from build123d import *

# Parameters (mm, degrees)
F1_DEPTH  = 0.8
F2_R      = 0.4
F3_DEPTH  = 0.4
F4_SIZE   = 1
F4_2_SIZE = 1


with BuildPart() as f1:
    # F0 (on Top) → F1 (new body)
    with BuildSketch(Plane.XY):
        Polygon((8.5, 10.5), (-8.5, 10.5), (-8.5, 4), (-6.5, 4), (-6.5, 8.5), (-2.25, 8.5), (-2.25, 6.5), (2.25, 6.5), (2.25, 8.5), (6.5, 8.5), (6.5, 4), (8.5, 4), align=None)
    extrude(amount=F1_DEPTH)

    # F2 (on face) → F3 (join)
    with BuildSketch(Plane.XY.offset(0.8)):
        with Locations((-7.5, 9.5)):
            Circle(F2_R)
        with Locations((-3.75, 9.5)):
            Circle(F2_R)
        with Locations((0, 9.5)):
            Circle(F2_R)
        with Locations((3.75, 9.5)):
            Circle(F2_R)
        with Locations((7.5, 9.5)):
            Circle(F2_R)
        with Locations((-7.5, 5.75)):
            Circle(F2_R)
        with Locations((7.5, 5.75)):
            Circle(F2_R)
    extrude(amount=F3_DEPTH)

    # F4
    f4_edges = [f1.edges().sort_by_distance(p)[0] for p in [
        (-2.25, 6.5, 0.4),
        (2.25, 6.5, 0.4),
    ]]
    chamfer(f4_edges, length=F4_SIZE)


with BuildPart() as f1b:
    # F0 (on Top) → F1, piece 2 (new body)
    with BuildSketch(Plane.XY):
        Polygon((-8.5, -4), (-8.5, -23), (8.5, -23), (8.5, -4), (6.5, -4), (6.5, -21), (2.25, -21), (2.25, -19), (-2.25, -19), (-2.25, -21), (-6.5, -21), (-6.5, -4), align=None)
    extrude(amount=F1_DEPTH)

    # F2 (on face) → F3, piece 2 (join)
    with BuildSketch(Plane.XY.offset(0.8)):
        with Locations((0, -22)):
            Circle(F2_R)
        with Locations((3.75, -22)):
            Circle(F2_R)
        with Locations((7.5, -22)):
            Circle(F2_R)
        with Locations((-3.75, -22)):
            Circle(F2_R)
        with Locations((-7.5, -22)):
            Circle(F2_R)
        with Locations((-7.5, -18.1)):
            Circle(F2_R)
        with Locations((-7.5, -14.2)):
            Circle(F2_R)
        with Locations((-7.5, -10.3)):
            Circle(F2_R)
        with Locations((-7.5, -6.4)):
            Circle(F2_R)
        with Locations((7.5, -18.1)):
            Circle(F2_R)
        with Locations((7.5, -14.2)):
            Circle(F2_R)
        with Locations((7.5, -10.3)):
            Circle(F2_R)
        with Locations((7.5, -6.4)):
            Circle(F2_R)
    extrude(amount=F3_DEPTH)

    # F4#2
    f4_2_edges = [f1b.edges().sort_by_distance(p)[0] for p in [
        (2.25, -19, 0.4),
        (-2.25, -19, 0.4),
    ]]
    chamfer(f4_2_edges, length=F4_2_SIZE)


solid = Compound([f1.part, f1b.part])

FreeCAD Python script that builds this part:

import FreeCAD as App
import Part
import Sketcher

V = App.Vector


def edges_at(feature, points):
    """Names of the edges that pass closest to the given points."""
    edges = feature.Shape.Edges
    near = lambda p: min(range(len(edges)), key=lambda i: edges[i].distToShape(Part.Vertex(*p))[0])
    return sorted({f"Edge{near(p) + 1}" for p in points})


def add_polygon(sketch, points):
    """Adds a closed chain of lines whose ends are joined by coincident constraints."""
    first, n = sketch.GeometryCount, len(points)
    for a, b in zip(points, points[1:] + points[:1]):
        sketch.addGeometry(Part.LineSegment(App.Vector(*a, 0), App.Vector(*b, 0)), False)
    for i in range(n):
        sketch.addConstraint(Sketcher.Constraint("Coincident", first + i, 2, first + (i + 1) % n, 1))

doc = App.newDocument("Part")
body = doc.addObject("PartDesign::Body", "Body")

# Sketch on XY plane
sketch1 = body.newObject("Sketcher::SketchObject", "Sketch")
sketch1.AttachmentSupport = (doc.getObject("XY_Plane"), [""])
sketch1.MapMode = "FlatFace"
add_polygon(sketch1, [(8.5, 10.5), (-8.5, 10.5), (-8.5, 4), (-6.5, 4), (-6.5, 8.5), (-2.25, 8.5), (-2.25, 6.5), (2.25, 6.5), (2.25, 8.5), (6.5, 8.5), (6.5, 4), (8.5, 4)])  # lines 0-11
sketch1.addConstraint([
    Sketcher.Constraint("Horizontal", 0),
    Sketcher.Constraint("Vertical", 1),
    Sketcher.Constraint("Horizontal", 2),
    Sketcher.Constraint("Vertical", 3),
    Sketcher.Constraint("Horizontal", 4),
    Sketcher.Constraint("Vertical", 5),
    Sketcher.Constraint("Horizontal", 6),
    Sketcher.Constraint("Vertical", 7),
    Sketcher.Constraint("Horizontal", 8),
    Sketcher.Constraint("Vertical", 9),
    Sketcher.Constraint("Horizontal", 10),
    Sketcher.Constraint("Vertical", 11),
    Sketcher.Constraint("Symmetric", 4, 2, 7, 2, -2),
    Sketcher.Constraint("Symmetric", 2, 2, 9, 2, -2),
    Sketcher.Constraint("Equal", 2, 10),
    Sketcher.Constraint("Equal", 6, 3),
    Sketcher.Constraint("Equal", 10, 5),
    Sketcher.Constraint("DistanceX", 0, 2, 0, 1, 17.0),
    Sketcher.Constraint("DistanceX", 2, 1, 2, 2, 2.0),
    Sketcher.Constraint("DistanceX", 6, 1, 6, 2, 4.5),
    Sketcher.Constraint("DistanceY", 1, 2, 1, 1, 6.5),
    Sketcher.Constraint("DistanceY", -1, 1, 1, 2, 4.0),
])
pad1 = body.newObject("PartDesign::Pad", "Pad")
pad1.Profile = sketch1
pad1.Length = 0.8

# Sketch on XY plane
sketch2 = body.newObject("Sketcher::SketchObject", "Sketch001")
sketch2.AttachmentSupport = (doc.getObject("XY_Plane"), [""])
sketch2.MapMode = "FlatFace"
sketch2.AttachmentOffset = App.Placement(V(0, 0, 0.8), App.Rotation())
sketch2.addGeometry([
    Part.Circle(V(-7.5, 9.5, 0), V(0, 0, 1), 0.4),  # 0
    Part.Circle(V(-3.75, 9.5, 0), V(0, 0, 1), 0.4),  # 1
    Part.Circle(V(0, 9.5, 0), V(0, 0, 1), 0.4),  # 2
    Part.Circle(V(3.75, 9.5, 0), V(0, 0, 1), 0.4),  # 3
    Part.Circle(V(7.5, 9.5, 0), V(0, 0, 1), 0.4),  # 4
    Part.Circle(V(-7.5, 5.75, 0), V(0, 0, 1), 0.4),  # 5
    Part.Circle(V(7.5, 5.75, 0), V(0, 0, 1), 0.4),  # 6
], False)
sketch2.addConstraint([
    Sketcher.Constraint("Equal", 0, 1),
    Sketcher.Constraint("Equal", 1, 2),
    Sketcher.Constraint("Equal", 2, 3),
    Sketcher.Constraint("Equal", 3, 4),
    Sketcher.Constraint("Equal", 4, 5),
    Sketcher.Constraint("Equal", 5, 6),
    Sketcher.Constraint("Symmetric", 1, 3, 3, 3, -2),
    Sketcher.Constraint("Symmetric", 0, 3, 4, 3, -2),
    Sketcher.Constraint("Symmetric", 5, 3, 6, 3, -2),
    Sketcher.Constraint("PointOnObject", 2, 3, -2),
    Sketcher.Constraint("Horizontal", 0, 3, 1, 3),
    Sketcher.Constraint("Horizontal", 1, 3, 2, 3),
    Sketcher.Constraint("Vertical", 0, 3, 5, 3),
    Sketcher.Constraint("Diameter", 0, 0.8),
    Sketcher.Constraint("DistanceX", 0, 3, 4, 3, 15.0),
    Sketcher.Constraint("DistanceY", -1, 1, 0, 3, 9.5),
    Sketcher.Constraint("DistanceX", 1, 3, 3, 3, 7.5),
    Sketcher.Constraint("DistanceY", -1, 1, 5, 3, 5.75),
])
pad2 = body.newObject("PartDesign::Pad", "Pad001")
pad2.Profile = sketch2
pad2.Length = 0.4
doc.recompute()

chamfer = body.newObject("PartDesign::Chamfer", "Chamfer")
chamfer.Base = (pad2, edges_at(pad2, [(-2.25, 6.5, 0.4), (2.25, 6.5, 0.4)]))
chamfer.Size = 1
body2 = doc.addObject("PartDesign::Body", "Body001")

# Sketch on XY plane
sketch3 = body2.newObject("Sketcher::SketchObject", "Sketch002")
sketch3.AttachmentSupport = (doc.getObject("XY_Plane001"), [""])
sketch3.MapMode = "FlatFace"
add_polygon(sketch3, [(-8.5, -4), (-8.5, -23), (8.5, -23), (8.5, -4), (6.5, -4), (6.5, -21), (2.25, -21), (2.25, -19), (-2.25, -19), (-2.25, -21), (-6.5, -21), (-6.5, -4)])  # lines 0-11
sketch3.addConstraint([
    Sketcher.Constraint("Vertical", 0),
    Sketcher.Constraint("Horizontal", 1),
    Sketcher.Constraint("Vertical", 2),
    Sketcher.Constraint("Horizontal", 3),
    Sketcher.Constraint("Vertical", 4),
    Sketcher.Constraint("Horizontal", 5),
    Sketcher.Constraint("Vertical", 6),
    Sketcher.Constraint("Horizontal", 7),
    Sketcher.Constraint("Vertical", 8),
    Sketcher.Constraint("Horizontal", 9),
    Sketcher.Constraint("Vertical", 10),
    Sketcher.Constraint("Horizontal", 11),
    Sketcher.Constraint("Symmetric", 5, 2, 8, 2, -2),
    Sketcher.Constraint("Symmetric", 3, 2, 10, 2, -2),
    Sketcher.Constraint("Equal", 3, 11),
    Sketcher.Constraint("Equal", 1, 4),
    Sketcher.Constraint("Equal", 11, 6),
    Sketcher.Constraint("DistanceX", 1, 1, 1, 2, 17.0),
    Sketcher.Constraint("DistanceX", 3, 2, 3, 1, 2.0),
    Sketcher.Constraint("DistanceY", 0, 2, 0, 1, 19.0),
    Sketcher.Constraint("DistanceX", 7, 2, 7, 1, 4.5),
    Sketcher.Constraint("DistanceY", 0, 2, -1, 1, 23.0),
])
pad3 = body2.newObject("PartDesign::Pad", "Pad002")
pad3.Profile = sketch3
pad3.Length = 0.8

# Sketch on XY plane
sketch4 = body2.newObject("Sketcher::SketchObject", "Sketch003")
sketch4.AttachmentSupport = (doc.getObject("XY_Plane001"), [""])
sketch4.MapMode = "FlatFace"
sketch4.AttachmentOffset = App.Placement(V(0, 0, 0.8), App.Rotation())
sketch4.addGeometry([
    Part.Circle(V(0, -22, 0), V(0, 0, 1), 0.4),  # 0
    Part.Circle(V(3.75, -22, 0), V(0, 0, 1), 0.4),  # 1
    Part.Circle(V(7.5, -22, 0), V(0, 0, 1), 0.4),  # 2
    Part.Circle(V(-3.75, -22, 0), V(0, 0, 1), 0.4),  # 3
    Part.Circle(V(-7.5, -22, 0), V(0, 0, 1), 0.4),  # 4
    Part.Circle(V(-7.5, -18.1, 0), V(0, 0, 1), 0.4),  # 5
    Part.Circle(V(-7.5, -14.2, 0), V(0, 0, 1), 0.4),  # 6
    Part.Circle(V(-7.5, -10.3, 0), V(0, 0, 1), 0.4),  # 7
    Part.Circle(V(-7.5, -6.4, 0), V(0, 0, 1), 0.4),  # 8
    Part.Circle(V(7.5, -18.1, 0), V(0, 0, 1), 0.4),  # 9
    Part.Circle(V(7.5, -14.2, 0), V(0, 0, 1), 0.4),  # 10
    Part.Circle(V(7.5, -10.3, 0), V(0, 0, 1), 0.4),  # 11
    Part.Circle(V(7.5, -6.4, 0), V(0, 0, 1), 0.4),  # 12
], False)
sketch4.addConstraint([
    Sketcher.Constraint("Equal", 0, 1),
    Sketcher.Constraint("Equal", 1, 2),
    Sketcher.Constraint("Equal", 2, 3),
    Sketcher.Constraint("Equal", 3, 4),
    Sketcher.Constraint("Equal", 4, 5),
    Sketcher.Constraint("Equal", 5, 6),
    Sketcher.Constraint("Equal", 6, 7),
    Sketcher.Constraint("Equal", 7, 8),
    Sketcher.Constraint("Equal", 8, 9),
    Sketcher.Constraint("Equal", 9, 10),
    Sketcher.Constraint("Equal", 10, 11),
    Sketcher.Constraint("Equal", 11, 12),
    Sketcher.Constraint("Symmetric", 1, 3, 3, 3, -2),
    Sketcher.Constraint("Symmetric", 2, 3, 4, 3, -2),
    Sketcher.Constraint("Symmetric", 5, 3, 9, 3, -2),
    Sketcher.Constraint("Symmetric", 6, 3, 10, 3, -2),
    Sketcher.Constraint("Symmetric", 7, 3, 11, 3, -2),
    Sketcher.Constraint("Symmetric", 8, 3, 12, 3, -2),
    Sketcher.Constraint("PointOnObject", 0, 3, -2),
    Sketcher.Constraint("Horizontal", 0, 3, 1, 3),
    Sketcher.Constraint("Horizontal", 1, 3, 2, 3),
    Sketcher.Constraint("Vertical", 4, 3, 5, 3),
    Sketcher.Constraint("Vertical", 5, 3, 6, 3),
    Sketcher.Constraint("Vertical", 6, 3, 7, 3),
    Sketcher.Constraint("Vertical", 7, 3, 8, 3),
    Sketcher.Constraint("Diameter", 0, 0.8),
    Sketcher.Constraint("DistanceY", 0, 3, -1, 1, 22.0),
    Sketcher.Constraint("DistanceX", 4, 3, 2, 3, 15.0),
    Sketcher.Constraint("DistanceY", 5, 3, -1, 1, 18.1),
    Sketcher.Constraint("DistanceY", 6, 3, -1, 1, 14.2),
    Sketcher.Constraint("DistanceY", 7, 3, -1, 1, 10.3),
    Sketcher.Constraint("DistanceY", 8, 3, -1, 1, 6.4),
    Sketcher.Constraint("DistanceX", 3, 3, 1, 3, 7.5),
])
pad4 = body2.newObject("PartDesign::Pad", "Pad003")
pad4.Profile = sketch4
pad4.Length = 0.4
doc.recompute()

chamfer2 = body2.newObject("PartDesign::Chamfer", "Chamfer001")
chamfer2.Base = (pad4, edges_at(pad4, [(2.25, -19, 0.4), (-2.25, -19, 0.4)]))
chamfer2.Size = 1

doc.recompute()
